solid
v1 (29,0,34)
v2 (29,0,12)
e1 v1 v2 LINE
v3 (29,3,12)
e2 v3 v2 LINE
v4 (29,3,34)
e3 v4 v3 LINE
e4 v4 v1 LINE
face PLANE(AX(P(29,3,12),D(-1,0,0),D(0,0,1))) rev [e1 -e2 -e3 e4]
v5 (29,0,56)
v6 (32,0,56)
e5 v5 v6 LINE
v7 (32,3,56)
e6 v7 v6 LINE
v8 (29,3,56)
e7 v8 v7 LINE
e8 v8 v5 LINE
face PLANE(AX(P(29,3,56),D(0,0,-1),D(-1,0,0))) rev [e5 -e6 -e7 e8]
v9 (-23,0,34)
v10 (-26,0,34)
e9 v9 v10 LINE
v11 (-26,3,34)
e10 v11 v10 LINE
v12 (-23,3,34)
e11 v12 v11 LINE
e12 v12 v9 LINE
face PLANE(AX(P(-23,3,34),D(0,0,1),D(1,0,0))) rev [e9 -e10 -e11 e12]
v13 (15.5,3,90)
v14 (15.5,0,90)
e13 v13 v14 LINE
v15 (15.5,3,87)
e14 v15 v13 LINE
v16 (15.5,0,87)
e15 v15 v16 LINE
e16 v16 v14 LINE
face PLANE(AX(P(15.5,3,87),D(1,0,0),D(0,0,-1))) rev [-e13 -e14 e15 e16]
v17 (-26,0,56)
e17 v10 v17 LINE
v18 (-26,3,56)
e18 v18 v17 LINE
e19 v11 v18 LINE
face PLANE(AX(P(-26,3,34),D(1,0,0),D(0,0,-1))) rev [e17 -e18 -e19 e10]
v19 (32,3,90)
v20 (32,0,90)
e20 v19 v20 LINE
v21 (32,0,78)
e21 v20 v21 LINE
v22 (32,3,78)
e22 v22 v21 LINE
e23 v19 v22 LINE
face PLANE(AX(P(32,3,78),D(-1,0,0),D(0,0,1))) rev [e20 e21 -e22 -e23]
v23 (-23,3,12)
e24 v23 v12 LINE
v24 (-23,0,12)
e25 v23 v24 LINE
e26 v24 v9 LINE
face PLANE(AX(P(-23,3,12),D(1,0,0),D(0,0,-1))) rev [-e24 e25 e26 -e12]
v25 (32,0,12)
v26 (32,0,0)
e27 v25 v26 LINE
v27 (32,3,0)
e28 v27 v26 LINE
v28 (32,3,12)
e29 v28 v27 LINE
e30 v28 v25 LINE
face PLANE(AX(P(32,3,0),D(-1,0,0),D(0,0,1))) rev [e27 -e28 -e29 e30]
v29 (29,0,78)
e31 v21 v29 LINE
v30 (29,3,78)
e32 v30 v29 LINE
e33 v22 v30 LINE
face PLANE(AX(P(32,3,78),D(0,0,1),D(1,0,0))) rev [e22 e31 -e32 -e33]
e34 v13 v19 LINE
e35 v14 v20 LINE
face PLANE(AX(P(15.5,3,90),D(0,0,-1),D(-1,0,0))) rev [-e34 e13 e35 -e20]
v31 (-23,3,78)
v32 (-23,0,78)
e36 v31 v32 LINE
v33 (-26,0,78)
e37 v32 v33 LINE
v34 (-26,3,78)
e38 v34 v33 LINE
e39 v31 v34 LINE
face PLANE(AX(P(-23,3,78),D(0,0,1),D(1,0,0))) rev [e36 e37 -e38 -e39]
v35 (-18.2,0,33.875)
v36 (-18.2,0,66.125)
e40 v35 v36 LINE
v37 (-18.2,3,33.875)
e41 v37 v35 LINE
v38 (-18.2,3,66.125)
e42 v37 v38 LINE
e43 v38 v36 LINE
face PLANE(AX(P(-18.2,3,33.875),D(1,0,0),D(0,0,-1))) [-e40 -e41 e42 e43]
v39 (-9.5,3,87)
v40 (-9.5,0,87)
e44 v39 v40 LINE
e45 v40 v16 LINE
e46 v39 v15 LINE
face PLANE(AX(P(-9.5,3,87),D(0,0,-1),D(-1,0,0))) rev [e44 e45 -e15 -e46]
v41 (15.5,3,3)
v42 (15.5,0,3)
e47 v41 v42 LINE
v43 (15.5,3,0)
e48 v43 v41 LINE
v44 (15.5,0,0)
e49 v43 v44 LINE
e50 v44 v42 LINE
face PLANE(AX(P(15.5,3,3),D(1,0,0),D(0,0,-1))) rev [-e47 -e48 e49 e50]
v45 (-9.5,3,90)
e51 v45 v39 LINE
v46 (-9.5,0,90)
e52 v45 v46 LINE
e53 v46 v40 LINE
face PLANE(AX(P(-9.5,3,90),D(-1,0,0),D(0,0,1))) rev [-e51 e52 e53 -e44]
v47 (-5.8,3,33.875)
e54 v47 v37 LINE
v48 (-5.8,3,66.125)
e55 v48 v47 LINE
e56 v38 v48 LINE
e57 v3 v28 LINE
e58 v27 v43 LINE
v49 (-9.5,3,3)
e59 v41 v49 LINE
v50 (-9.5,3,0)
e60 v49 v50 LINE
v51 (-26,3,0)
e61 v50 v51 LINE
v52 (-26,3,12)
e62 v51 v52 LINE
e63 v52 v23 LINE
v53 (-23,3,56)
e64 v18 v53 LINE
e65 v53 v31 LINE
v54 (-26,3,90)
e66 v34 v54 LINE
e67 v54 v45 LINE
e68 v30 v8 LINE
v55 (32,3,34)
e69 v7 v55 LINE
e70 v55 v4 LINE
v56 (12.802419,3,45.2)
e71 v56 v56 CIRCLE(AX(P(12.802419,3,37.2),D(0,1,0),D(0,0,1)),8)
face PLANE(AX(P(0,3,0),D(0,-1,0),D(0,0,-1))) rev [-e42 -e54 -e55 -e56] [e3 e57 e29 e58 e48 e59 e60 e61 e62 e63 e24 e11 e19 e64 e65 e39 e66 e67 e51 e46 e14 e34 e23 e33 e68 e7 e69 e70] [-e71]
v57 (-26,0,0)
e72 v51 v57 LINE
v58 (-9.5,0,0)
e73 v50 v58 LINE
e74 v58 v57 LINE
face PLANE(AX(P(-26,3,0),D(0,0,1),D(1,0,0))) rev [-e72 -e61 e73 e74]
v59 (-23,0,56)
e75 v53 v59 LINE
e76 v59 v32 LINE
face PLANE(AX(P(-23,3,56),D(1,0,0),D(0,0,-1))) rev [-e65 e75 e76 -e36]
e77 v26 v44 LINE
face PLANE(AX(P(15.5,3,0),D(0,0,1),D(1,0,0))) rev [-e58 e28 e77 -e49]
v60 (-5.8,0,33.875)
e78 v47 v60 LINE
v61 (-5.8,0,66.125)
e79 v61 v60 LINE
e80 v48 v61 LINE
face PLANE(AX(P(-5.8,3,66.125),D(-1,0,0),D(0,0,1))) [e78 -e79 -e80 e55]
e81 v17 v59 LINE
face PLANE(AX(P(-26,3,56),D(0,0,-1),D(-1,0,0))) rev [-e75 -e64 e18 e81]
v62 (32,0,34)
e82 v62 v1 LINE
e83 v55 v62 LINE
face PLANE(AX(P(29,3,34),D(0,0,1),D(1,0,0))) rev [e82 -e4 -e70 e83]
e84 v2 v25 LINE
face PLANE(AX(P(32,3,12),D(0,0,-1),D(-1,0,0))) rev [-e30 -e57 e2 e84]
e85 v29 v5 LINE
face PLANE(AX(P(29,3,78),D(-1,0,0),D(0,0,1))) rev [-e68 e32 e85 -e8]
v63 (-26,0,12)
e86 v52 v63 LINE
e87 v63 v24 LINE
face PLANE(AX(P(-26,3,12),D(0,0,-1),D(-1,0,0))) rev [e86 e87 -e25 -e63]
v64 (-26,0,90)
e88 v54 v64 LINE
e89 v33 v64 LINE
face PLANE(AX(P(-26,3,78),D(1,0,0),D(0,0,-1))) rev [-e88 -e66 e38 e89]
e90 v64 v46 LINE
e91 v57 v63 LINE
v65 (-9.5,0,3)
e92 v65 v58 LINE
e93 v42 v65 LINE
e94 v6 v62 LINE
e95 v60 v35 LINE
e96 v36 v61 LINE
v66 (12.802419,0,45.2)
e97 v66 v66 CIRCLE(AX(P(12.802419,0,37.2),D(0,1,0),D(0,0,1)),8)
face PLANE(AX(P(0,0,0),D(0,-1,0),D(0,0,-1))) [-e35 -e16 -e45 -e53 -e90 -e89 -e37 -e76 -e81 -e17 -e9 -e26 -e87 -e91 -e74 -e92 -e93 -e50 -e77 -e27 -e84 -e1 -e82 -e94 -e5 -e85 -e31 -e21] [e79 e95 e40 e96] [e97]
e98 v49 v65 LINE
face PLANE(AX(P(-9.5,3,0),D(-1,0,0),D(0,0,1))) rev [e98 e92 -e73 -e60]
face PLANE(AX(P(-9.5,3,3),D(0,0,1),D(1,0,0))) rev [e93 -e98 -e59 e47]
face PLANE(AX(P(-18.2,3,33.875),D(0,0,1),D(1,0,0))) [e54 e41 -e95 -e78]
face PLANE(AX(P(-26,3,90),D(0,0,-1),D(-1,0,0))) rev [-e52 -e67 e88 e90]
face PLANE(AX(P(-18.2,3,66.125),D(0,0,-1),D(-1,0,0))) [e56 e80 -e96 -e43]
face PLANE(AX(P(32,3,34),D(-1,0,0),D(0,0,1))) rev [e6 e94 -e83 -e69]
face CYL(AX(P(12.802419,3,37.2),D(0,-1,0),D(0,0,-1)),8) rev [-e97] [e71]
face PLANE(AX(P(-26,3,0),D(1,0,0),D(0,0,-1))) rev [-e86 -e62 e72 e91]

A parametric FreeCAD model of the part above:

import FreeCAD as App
import Part
import Sketcher

V = App.Vector
Q = App.Units.Quantity


def add_polygon(sketch, points):
    """Adds a closed chain of lines whose ends are joined by coincident constraints."""
    first, n = sketch.GeometryCount, len(points)
    for a, b in zip(points, points[1:] + points[:1]):
        sketch.addGeometry(Part.LineSegment(App.Vector(*a, 0), App.Vector(*b, 0)), False)
    for i in range(n):
        sketch.addConstraint(Sketcher.Constraint("Coincident", first + i, 2, first + (i + 1) % n, 1))

doc = App.newDocument("Part")
body = doc.addObject("PartDesign::Body", "Body")

sketch1 = body.newObject("Sketcher::SketchObject", "Sketch")
sketch1.AttachmentSupport = (doc.getObject("XZ_Plane"), [""])
sketch1.MapMode = "FlatFace"
add_polygon(sketch1, [(-26, 90), (-9.5, 90), (-9.5, 87), (15.5, 87), (15.5, 90), (32, 90), (32, 78), (29, 78), (29, 56), (32, 56), (32, 34), (29, 34), (29, 12), (32, 12), (32, 0), (15.5, 0), (15.5, 3), (-9.5, 3), (-9.5, 0), (-26, 0), (-26, 12), (-23, 12), (-23, 34), (-26, 34), (-26, 56), (-23, 56), (-23, 78), (-26, 78)])
add_polygon(sketch1, [(-5.8, 66.1), (-18.2, 66.1), (-18.2, 33.9), (-5.8, 33.9)])
sketch1.addGeometry(Part.Circle(V(12.8, 37.2, 0), V(0, 0, 1), 8), False)
sketch1.addConstraint([
    Sketcher.Constraint("Horizontal", 0),
    Sketcher.Constraint("Vertical", 1),
    Sketcher.Constraint("Horizontal", 2),
    Sketcher.Constraint("Vertical", 3),
    Sketcher.Constraint("Horizontal", 4),
    Sketcher.Constraint("Vertical", 5),
    Sketcher.Constraint("Horizontal", 6),
    Sketcher.Constraint("Vertical", 7),
    Sketcher.Constraint("Horizontal", 8),
    Sketcher.Constraint("Vertical", 9),
    Sketcher.Constraint("Horizontal", 10),
    Sketcher.Constraint("Vertical", 11),
    Sketcher.Constraint("Horizontal", 12),
    Sketcher.Constraint("Vertical", 13),
    Sketcher.Constraint("Horizontal", 14),
    Sketcher.Constraint("Vertical", 15),
    Sketcher.Constraint("Horizontal", 16),
    Sketcher.Constraint("Vertical", 17),
    Sketcher.Constraint("Horizontal", 18),
    Sketcher.Constraint("Vertical", 19),
    Sketcher.Constraint("Horizontal", 20),
    Sketcher.Constraint("Vertical", 21),
    Sketcher.Constraint("Horizontal", 22),
    Sketcher.Constraint("Vertical", 23),
    Sketcher.Constraint("Horizontal", 24),
    Sketcher.Constraint("Vertical", 25),
    Sketcher.Constraint("Horizontal", 26),
    Sketcher.Constraint("Vertical", 27),
    Sketcher.Constraint("Horizontal", 28),
    Sketcher.Constraint("Vertical", 29),
    Sketcher.Constraint("Horizontal", 30),
    Sketcher.Constraint("Vertical", 31),
    Sketcher.Constraint("PointOnObject", 13, 2, -1),
    Sketcher.Constraint("PointOnObject", 17, 2, -1),
    Sketcher.Constraint("Horizontal", 0, 2, 3, 2),
    Sketcher.Constraint("Horizontal", 12, 2, 19, 2),
    Sketcher.Constraint("Horizontal", 10, 2, 21, 2),
    Sketcher.Constraint("Horizontal", 8, 2, 23, 2),
    Sketcher.Constraint("Horizontal", 6, 2, 25, 2),
    Sketcher.Constraint("Vertical", 5, 2, 8, 2),
    Sketcher.Constraint("Vertical", 7, 2, 10, 2),
    Sketcher.Constraint("Vertical", 9, 2, 12, 2),
    Sketcher.Constraint("Vertical", 3, 2, 14, 2),
    Sketcher.Constraint("Vertical", 1, 2, 16, 2),
    Sketcher.Constraint("Vertical", 19, 2, 22, 2),
    Sketcher.Constraint("Vertical", 21, 2, 24, 2),
    Sketcher.Constraint("Vertical", 23, 2, 26, 2),
    Sketcher.Constraint("Equal", 0, 4),
    Sketcher.Constraint("Equal", 12, 20),
    Sketcher.Constraint("Equal", 26, 1),
    Sketcher.Constraint("Equal", 7, 9),
    Sketcher.Constraint("Equal", 9, 11),
    Sketcher.Constraint("Equal", 5, 13),
    Sketcher.Constraint("Equal", 3, 15),
    Sketcher.Constraint("Diameter", 32, Q("16 mm")),
    Sketcher.Constraint("DistanceX", 2, 1, 2, 2, Q("25 mm")),
    Sketcher.Constraint("DistanceX", 6, 2, 6, 1, Q("3 mm")),
    Sketcher.Constraint("DistanceY", 5, 2, 5, 1, Q("12 mm")),
    Sketcher.Constraint("DistanceY", 7, 2, 7, 1, Q("22 mm")),
    Sketcher.Constraint("DistanceX", 0, 1, 0, 2, Q("16.5 mm")),
    Sketcher.Constraint("DistanceX", 28, 2, 28, 1, Q("12.4 mm")),
    Sketcher.Constraint("DistanceX", -1, 1, 4, 2, Q("32 mm")),
    Sketcher.Constraint("DistanceY", 29, 2, 29, 1, Q("32.25 mm")),
    Sketcher.Constraint("DistanceY", -1, 1, 32, 3, Q("37.2 mm")),
    Sketcher.Constraint("DistanceX", 28, 2, -1, 1, Q("18.2 mm")),
    Sketcher.Constraint("DistanceY", -1, 1, 28, 2, Q("66.125 mm")),
    Sketcher.Constraint("DistanceX", -1, 1, 32, 3, Q("12.802419 mm")),
])
pad1 = body.newObject("PartDesign::Pad", "Pad")
pad1.Profile = sketch1
pad1.Length = 3
pad1.Reversed = True

doc.recompute()
